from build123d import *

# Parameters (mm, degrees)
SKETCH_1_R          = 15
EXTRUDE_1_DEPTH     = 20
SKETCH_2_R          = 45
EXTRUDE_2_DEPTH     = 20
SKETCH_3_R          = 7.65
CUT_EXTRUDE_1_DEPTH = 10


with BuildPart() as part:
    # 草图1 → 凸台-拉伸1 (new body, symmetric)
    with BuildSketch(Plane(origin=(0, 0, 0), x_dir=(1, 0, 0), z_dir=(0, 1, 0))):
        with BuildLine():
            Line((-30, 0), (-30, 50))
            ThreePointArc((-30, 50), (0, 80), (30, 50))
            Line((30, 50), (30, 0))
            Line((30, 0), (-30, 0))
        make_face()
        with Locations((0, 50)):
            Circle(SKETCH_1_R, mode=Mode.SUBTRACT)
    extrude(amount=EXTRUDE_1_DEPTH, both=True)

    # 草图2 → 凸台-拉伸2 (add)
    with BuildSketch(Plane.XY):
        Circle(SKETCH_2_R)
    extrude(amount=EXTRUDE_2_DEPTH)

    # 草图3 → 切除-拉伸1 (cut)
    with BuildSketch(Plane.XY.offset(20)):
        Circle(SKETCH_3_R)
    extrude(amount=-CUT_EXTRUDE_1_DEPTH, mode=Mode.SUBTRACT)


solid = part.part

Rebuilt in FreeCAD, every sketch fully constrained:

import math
import FreeCAD as App
import Part
import Sketcher

doc = App.newDocument("Part")
body = doc.addObject("PartDesign::Body", "Body")

# Sketch on XZ plane
sketch1 = doc.addObject("Sketcher::SketchObject", "Sketch")
body.addObject(sketch1)
sketch1.AttachmentSupport = (doc.XZ_Plane, [""])
sketch1.MapMode = "FlatFace"
sketch1.addGeometry(Part.LineSegment(App.Vector(-30, -50, 0), App.Vector(-30, 0, 0)), False)
sketch1.addGeometry(Part.LineSegment(App.Vector(-30, 0, 0), App.Vector(30, 0, 0)), False)
sketch1.addGeometry(Part.LineSegment(App.Vector(30, 0, 0), App.Vector(30, -50, 0)), False)
sketch1.addGeometry(Part.ArcOfCircle(Part.Circle(App.Vector(0, -50, 0), App.Vector(0, 0, 1), 30), math.radians(180), math.radians(360)), False)
sketch1.addGeometry(Part.Circle(App.Vector(0, -50, 0), App.Vector(0, 0, 1), 15), False)
sketch1.addConstraint(Sketcher.Constraint("Coincident", 0, 2, 1, 1))
sketch1.addConstraint(Sketcher.Constraint("Coincident", 1, 2, 2, 1))
sketch1.addConstraint(Sketcher.Constraint("Tangent", 2, 2, 3, 2))
sketch1.addConstraint(Sketcher.Constraint("Tangent", 3, 1, 0, 1))
sketch1.addConstraint(Sketcher.Constraint("Vertical", 0))
sketch1.addConstraint(Sketcher.Constraint("Horizontal", 1))
sketch1.addConstraint(Sketcher.Constraint("Vertical", 2))
sketch1.addConstraint(Sketcher.Constraint("Coincident", 4, 3, 3, 3))
sketch1.addConstraint(Sketcher.Constraint("Symmetric", 0, 2, 1, 2, -1, 1))
sketch1.addConstraint(Sketcher.Constraint("Diameter", 4, 30.0))
sketch1.addConstraint(Sketcher.Constraint("Radius", 3, 30.0))
sketch1.addConstraint(Sketcher.Constraint("DistanceY", 0, 1, 0, 2, 50.0))
pad1 = doc.addObject("PartDesign::Pad", "Pad")
body.addObject(pad1)
pad1.Profile = sketch1
pad1.Length = 40
pad1.Midplane = True

# Sketch on XY plane
sketch2 = doc.addObject("Sketcher::SketchObject", "Sketch001")
body.addObject(sketch2)
sketch2.AttachmentSupport = (doc.XY_Plane, [""])
sketch2.MapMode = "FlatFace"
sketch2.addGeometry(Part.Circle(App.Vector(0, 0, 0), App.Vector(0, 0, 1), 45), False)
sketch2.addConstraint(Sketcher.Constraint("Coincident", 0, 3, -1, 1))
sketch2.addConstraint(Sketcher.Constraint("Diameter", 0, 90.0))
pad2 = doc.addObject("PartDesign::Pad", "Pad001")
body.addObject(pad2)
pad2.Profile = sketch2
pad2.Length = 20

# Sketch on XY plane
sketch3 = doc.addObject("Sketcher::SketchObject", "Sketch002")
body.addObject(sketch3)
sketch3.AttachmentSupport = (doc.XY_Plane, [""])
sketch3.MapMode = "FlatFace"
sketch3.AttachmentOffset = App.Placement(App.Vector(0, 0, 20), App.Rotation())
sketch3.addGeometry(Part.Circle(App.Vector(0, 0, 0), App.Vector(0, 0, 1), 7.65), False)
sketch3.addConstraint(Sketcher.Constraint("Coincident", 0, 3, -1, 1))
sketch3.addConstraint(Sketcher.Constraint("Diameter", 0, 15.3))
pocket1 = doc.addObject("PartDesign::Pocket", "Pocket")
body.addObject(pocket1)
pocket1.Profile = sketch3
pocket1.Length = 10

doc.recompute()
